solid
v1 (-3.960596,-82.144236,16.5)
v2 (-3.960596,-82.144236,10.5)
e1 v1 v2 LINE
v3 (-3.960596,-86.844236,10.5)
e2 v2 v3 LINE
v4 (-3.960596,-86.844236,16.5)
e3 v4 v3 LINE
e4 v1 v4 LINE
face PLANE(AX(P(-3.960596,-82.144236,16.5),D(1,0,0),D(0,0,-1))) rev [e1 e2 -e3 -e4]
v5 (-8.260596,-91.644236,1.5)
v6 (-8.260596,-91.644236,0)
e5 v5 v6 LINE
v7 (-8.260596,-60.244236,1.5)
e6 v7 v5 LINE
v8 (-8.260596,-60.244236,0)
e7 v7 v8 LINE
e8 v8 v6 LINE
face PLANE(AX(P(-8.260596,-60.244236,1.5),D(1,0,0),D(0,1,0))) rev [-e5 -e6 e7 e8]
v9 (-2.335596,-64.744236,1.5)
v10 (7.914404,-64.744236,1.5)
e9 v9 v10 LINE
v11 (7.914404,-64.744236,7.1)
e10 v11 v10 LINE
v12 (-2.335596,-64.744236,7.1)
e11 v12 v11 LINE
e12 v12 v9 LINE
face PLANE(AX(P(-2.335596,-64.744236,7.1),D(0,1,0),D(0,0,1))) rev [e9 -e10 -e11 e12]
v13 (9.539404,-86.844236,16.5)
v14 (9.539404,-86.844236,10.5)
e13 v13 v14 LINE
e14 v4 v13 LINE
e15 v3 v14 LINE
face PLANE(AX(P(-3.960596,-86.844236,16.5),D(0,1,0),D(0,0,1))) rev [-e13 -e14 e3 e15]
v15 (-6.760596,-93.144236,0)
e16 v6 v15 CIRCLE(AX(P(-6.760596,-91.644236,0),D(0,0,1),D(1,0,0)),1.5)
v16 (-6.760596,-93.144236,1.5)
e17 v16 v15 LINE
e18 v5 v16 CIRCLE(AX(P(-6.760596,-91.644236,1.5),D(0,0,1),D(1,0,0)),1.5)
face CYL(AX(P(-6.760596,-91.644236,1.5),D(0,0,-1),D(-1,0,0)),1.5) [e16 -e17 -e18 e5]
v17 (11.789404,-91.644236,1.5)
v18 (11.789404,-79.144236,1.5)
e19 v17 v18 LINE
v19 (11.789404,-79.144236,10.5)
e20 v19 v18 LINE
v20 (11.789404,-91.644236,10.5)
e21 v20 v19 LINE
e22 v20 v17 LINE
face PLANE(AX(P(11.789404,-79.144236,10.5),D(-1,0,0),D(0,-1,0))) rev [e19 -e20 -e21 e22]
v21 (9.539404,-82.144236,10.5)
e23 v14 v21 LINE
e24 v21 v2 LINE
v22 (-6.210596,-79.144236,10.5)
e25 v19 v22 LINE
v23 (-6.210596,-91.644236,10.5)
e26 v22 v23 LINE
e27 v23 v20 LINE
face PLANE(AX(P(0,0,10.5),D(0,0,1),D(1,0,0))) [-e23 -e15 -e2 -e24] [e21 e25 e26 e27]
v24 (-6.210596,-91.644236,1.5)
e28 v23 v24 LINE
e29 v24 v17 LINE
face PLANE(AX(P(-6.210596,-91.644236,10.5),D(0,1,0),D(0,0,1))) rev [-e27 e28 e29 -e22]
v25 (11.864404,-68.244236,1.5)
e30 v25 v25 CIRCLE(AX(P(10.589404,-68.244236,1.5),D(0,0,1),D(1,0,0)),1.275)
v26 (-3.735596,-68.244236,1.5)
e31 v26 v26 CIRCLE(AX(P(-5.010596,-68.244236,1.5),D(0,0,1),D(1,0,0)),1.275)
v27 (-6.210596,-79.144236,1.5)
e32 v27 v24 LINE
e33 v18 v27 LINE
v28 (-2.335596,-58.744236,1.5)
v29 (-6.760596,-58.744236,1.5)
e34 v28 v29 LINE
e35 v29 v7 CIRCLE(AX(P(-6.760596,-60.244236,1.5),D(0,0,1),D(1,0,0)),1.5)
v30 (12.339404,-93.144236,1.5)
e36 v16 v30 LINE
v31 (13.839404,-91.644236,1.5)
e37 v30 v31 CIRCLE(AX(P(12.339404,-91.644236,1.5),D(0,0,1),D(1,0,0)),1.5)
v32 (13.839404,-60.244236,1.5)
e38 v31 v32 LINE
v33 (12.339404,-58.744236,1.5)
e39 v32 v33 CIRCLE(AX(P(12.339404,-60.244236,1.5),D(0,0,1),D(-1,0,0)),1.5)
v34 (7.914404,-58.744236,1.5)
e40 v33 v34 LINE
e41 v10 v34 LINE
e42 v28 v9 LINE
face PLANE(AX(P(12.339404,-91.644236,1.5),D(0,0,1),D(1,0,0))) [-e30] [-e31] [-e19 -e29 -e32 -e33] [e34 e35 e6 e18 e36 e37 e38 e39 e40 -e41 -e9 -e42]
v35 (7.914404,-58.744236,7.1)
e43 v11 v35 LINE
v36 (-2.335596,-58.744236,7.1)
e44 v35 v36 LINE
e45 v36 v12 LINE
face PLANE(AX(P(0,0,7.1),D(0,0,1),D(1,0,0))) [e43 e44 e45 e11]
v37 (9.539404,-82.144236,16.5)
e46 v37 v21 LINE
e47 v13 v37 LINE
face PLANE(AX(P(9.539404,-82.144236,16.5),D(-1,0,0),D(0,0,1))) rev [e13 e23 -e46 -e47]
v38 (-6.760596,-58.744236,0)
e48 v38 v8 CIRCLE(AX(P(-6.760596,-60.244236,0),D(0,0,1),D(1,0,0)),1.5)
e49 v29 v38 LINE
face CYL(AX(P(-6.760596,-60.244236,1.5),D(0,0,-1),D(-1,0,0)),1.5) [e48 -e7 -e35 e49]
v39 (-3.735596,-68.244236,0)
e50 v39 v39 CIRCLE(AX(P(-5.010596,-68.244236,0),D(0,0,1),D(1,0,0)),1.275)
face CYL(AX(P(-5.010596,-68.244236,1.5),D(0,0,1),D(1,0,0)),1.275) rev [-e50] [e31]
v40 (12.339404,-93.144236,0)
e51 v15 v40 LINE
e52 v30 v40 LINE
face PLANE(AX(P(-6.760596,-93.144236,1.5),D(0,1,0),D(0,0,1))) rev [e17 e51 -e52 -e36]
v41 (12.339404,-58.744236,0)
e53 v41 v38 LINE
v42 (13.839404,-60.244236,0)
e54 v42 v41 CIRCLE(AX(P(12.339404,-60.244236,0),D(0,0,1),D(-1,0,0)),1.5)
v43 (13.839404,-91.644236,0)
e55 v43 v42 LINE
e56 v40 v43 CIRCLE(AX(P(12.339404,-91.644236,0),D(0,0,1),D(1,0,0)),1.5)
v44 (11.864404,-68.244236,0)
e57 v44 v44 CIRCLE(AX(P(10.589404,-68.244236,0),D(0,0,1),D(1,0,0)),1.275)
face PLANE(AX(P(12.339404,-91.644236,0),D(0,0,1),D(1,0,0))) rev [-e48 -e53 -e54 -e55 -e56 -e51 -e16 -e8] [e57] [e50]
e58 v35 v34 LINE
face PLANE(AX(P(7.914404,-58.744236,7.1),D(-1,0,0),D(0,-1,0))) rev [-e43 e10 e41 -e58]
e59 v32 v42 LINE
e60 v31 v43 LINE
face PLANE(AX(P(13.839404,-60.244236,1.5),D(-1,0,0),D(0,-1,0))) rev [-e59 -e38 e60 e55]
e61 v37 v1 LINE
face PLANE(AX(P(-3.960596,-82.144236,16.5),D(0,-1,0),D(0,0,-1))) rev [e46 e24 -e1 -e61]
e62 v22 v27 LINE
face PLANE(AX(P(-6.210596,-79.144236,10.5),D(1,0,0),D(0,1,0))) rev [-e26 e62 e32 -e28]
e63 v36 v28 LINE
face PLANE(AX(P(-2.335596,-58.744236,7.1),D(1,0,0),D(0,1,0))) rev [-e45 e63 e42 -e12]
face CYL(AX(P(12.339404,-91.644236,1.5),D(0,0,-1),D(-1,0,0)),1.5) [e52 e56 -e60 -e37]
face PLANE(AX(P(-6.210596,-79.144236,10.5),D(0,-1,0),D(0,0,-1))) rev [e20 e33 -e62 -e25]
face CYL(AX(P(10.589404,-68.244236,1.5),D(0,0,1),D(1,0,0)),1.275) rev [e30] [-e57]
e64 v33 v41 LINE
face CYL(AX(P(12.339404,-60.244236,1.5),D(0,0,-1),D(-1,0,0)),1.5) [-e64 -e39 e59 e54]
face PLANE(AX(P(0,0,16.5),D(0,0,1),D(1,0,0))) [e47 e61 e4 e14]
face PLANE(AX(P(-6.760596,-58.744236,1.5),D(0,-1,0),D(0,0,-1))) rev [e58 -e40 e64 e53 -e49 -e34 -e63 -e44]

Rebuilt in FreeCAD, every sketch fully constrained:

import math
import FreeCAD as App
import Part
import Sketcher
from FreeCAD import Vector

doc = App.newDocument("Part")
body = doc.addObject("PartDesign::Body", "Body")

# Sketch on XY plane
sketch1 = body.newObject("Sketcher::SketchObject", "Sketch")
sketch1.AttachmentSupport = (doc.getObject("XY_Plane"), [""])
sketch1.MapMode = "FlatFace"
sketch1.addGeometry([
    Part.LineSegment(Vector(12.3, -58.7, 0), Vector(-6.8, -58.7, 0)),  # 0
    Part.ArcOfCircle(Part.Circle(Vector(-6.8, -60.2, 0), Vector(0, 0, 1), 1.5), math.radians(90), math.radians(180)),  # 1
    Part.LineSegment(Vector(-8.3, -60.2, 0), Vector(-8.3, -91.6, 0)),  # 2
    Part.ArcOfCircle(Part.Circle(Vector(-6.8, -91.6, 0), Vector(0, 0, 1), 1.5), math.radians(-180), math.radians(-90)),  # 3
    Part.LineSegment(Vector(-6.8, -93.1, 0), Vector(12.3, -93.1, 0)),  # 4
    Part.ArcOfCircle(Part.Circle(Vector(12.3, -91.6, 0), Vector(0, 0, 1), 1.5), math.radians(-90), math.radians(0)),  # 5
    Part.LineSegment(Vector(13.8, -91.6, 0), Vector(13.8, -60.2, 0)),  # 6
    Part.ArcOfCircle(Part.Circle(Vector(12.3, -60.2, 0), Vector(0, 0, 1), 1.5), math.radians(0), math.radians(90)),  # 7
], False)
sketch1.addConstraint([
    Sketcher.Constraint("Tangent", 0, 2, 1, 1),
    Sketcher.Constraint("Tangent", 1, 2, 2, 1),
    Sketcher.Constraint("Tangent", 2, 2, 3, 1),
    Sketcher.Constraint("Tangent", 3, 2, 4, 1),
    Sketcher.Constraint("Tangent", 4, 2, 5, 1),
    Sketcher.Constraint("Tangent", 5, 2, 6, 1),
    Sketcher.Constraint("Tangent", 6, 2, 7, 1),
    Sketcher.Constraint("Tangent", 7, 2, 0, 1),
    Sketcher.Constraint("Horizontal", 0),
    Sketcher.Constraint("Vertical", 2),
    Sketcher.Constraint("Horizontal", 4),
    Sketcher.Constraint("Vertical", 6),
    Sketcher.Constraint("Equal", 1, 3),
    Sketcher.Constraint("Equal", 3, 5),
    Sketcher.Constraint("Equal", 5, 7),
    Sketcher.Constraint("Radius", 1, 1.5),
    Sketcher.Constraint("DistanceX", 0, 2, 0, 1, 19.1),
    Sketcher.Constraint("DistanceY", 2, 2, 2, 1, 31.4),
    Sketcher.Constraint("DistanceX", 1, 3, -1, 1, 6.760596),
    Sketcher.Constraint("DistanceY", 1, 3, -1, 1, 60.244236),
])
pad1 = body.newObject("PartDesign::Pad", "Pad")
pad1.Profile = sketch1
pad1.Length = 1.5

# Sketch on XY plane
sketch2 = body.newObject("Sketcher::SketchObject", "Sketch001")
sketch2.AttachmentSupport = (doc.getObject("XY_Plane"), [""])
sketch2.MapMode = "FlatFace"
sketch2.AttachmentOffset = App.Placement(Vector(0, 0, 1.5), App.Rotation())
sketch2.addGeometry([
    Part.LineSegment(Vector(-6, -79, 0), Vector(-6, -92, 0)),
    Part.LineSegment(Vector(-6, -92, 0), Vector(12, -92, 0)),
    Part.LineSegment(Vector(12, -92, 0), Vector(12, -79, 0)),
    Part.LineSegment(Vector(12, -79, 0), Vector(-6, -79, 0)),
], False)
sketch2.addConstraint([
    Sketcher.Constraint("Coincident", 0, 2, 1, 1),
    Sketcher.Constraint("Coincident", 1, 2, 2, 1),
    Sketcher.Constraint("Coincident", 2, 2, 3, 1),
    Sketcher.Constraint("Coincident", 3, 2, 0, 1),
    Sketcher.Constraint("Vertical", 0),
    Sketcher.Constraint("Horizontal", 1),
    Sketcher.Constraint("Vertical", 2),
    Sketcher.Constraint("Horizontal", 3),
    Sketcher.Constraint("DistanceX", 1, 1, 1, 2, 18.0),
    Sketcher.Constraint("DistanceY", 0, 2, 0, 1, 12.5),
    Sketcher.Constraint("DistanceX", 0, 2, -1, 1, 6.210596),
    Sketcher.Constraint("DistanceY", 0, 2, -1, 1, 91.644236),
])
pad2 = body.newObject("PartDesign::Pad", "Pad001")
pad2.Profile = sketch2
pad2.Length = 9

# Sketch on XY plane
sketch3 = body.newObject("Sketcher::SketchObject", "Sketch002")
sketch3.AttachmentSupport = (doc.getObject("XY_Plane"), [""])
sketch3.MapMode = "FlatFace"
sketch3.AttachmentOffset = App.Placement(Vector(0, 0, 10.5), App.Rotation())
sketch3.addGeometry([
    Part.LineSegment(Vector(-4, -82.1, 0), Vector(-4, -86.8, 0)),
    Part.LineSegment(Vector(-4, -86.8, 0), Vector(9.5, -86.8, 0)),
    Part.LineSegment(Vector(9.5, -86.8, 0), Vector(9.5, -82.1, 0)),
    Part.LineSegment(Vector(9.5, -82.1, 0), Vector(-4, -82.1, 0)),
], False)
sketch3.addConstraint([
    Sketcher.Constraint("Coincident", 0, 2, 1, 1),
    Sketcher.Constraint("Coincident", 1, 2, 2, 1),
    Sketcher.Constraint("Coincident", 2, 2, 3, 1),
    Sketcher.Constraint("Coincident", 3, 2, 0, 1),
    Sketcher.Constraint("Vertical", 0),
    Sketcher.Constraint("Horizontal", 1),
    Sketcher.Constraint("Vertical", 2),
    Sketcher.Constraint("Horizontal", 3),
    Sketcher.Constraint("DistanceX", 1, 1, 1, 2, 13.5),
    Sketcher.Constraint("DistanceY", 0, 2, 0, 1, 4.7),
    Sketcher.Constraint("DistanceX", 0, 2, -1, 1, 3.960596),
    Sketcher.Constraint("DistanceY", 0, 2, -1, 1, 86.844236),
])
pad3 = body.newObject("PartDesign::Pad", "Pad002")
pad3.Profile = sketch3
pad3.Length = 6

# Sketch on XY plane
sketch4 = body.newObject("Sketcher::SketchObject", "Sketch003")
sketch4.AttachmentSupport = (doc.getObject("XY_Plane"), [""])
sketch4.MapMode = "FlatFace"
sketch4.AttachmentOffset = App.Placement(Vector(0, 0, 1.5), App.Rotation())
sketch4.addGeometry([
    Part.LineSegment(Vector(-2, -59, 0), Vector(-2, -65, 0)),
    Part.LineSegment(Vector(-2, -65, 0), Vector(8, -65, 0)),
    Part.LineSegment(Vector(8, -65, 0), Vector(8, -59, 0)),
    Part.LineSegment(Vector(8, -59, 0), Vector(-2, -59, 0)),
], False)
sketch4.addConstraint([
    Sketcher.Constraint("Coincident", 0, 2, 1, 1),
    Sketcher.Constraint("Coincident", 1, 2, 2, 1),
    Sketcher.Constraint("Coincident", 2, 2, 3, 1),
    Sketcher.Constraint("Coincident", 3, 2, 0, 1),
    Sketcher.Constraint("Vertical", 0),
    Sketcher.Constraint("Horizontal", 1),
    Sketcher.Constraint("Vertical", 2),
    Sketcher.Constraint("Horizontal", 3),
    Sketcher.Constraint("DistanceY", 0, 2, 0, 1, 6.0),
    Sketcher.Constraint("DistanceX", 1, 1, 1, 2, 10.25),
    Sketcher.Constraint("DistanceX", 0, 2, -1, 1, 2.335596),
    Sketcher.Constraint("DistanceY", 0, 2, -1, 1, 64.744236),
])
pad4 = body.newObject("PartDesign::Pad", "Pad003")
pad4.Profile = sketch4
pad4.Length = 5.6

# Sketch on XY plane
sketch5 = body.newObject("Sketcher::SketchObject", "Sketch004")
sketch5.AttachmentSupport = (doc.getObject("XY_Plane"), [""])
sketch5.MapMode = "FlatFace"
sketch5.AttachmentOffset = App.Placement(Vector(0, 0, 1.5), App.Rotation())
sketch5.addGeometry([
    Part.Circle(Vector(-5, -68.2, 0), Vector(0, 0, 1), 1.3),
    Part.Circle(Vector(10.6, -68.2, 0), Vector(0, 0, 1), 1.3),
], False)
sketch5.addConstraint([
    Sketcher.Constraint("Equal", 0, 1),
    Sketcher.Constraint("Horizontal", 0, 3, 1, 3),
    Sketcher.Constraint("Diameter", 0, 2.55),
    Sketcher.Constraint("DistanceX", 0, 3, 1, 3, 15.6),
    Sketcher.Constraint("DistanceX", 0, 3, -1, 1, 5.010596),
    Sketcher.Constraint("DistanceY", 0, 3, -1, 1, 68.244236),
])
doc.recompute()
hole = body.newObject("PartDesign::Hole", "Hole")
hole.Profile = sketch5
hole.ThreadType = "None"
hole.Diameter = 2.55
hole.DepthType = "ThroughAll"

doc.recompute()
